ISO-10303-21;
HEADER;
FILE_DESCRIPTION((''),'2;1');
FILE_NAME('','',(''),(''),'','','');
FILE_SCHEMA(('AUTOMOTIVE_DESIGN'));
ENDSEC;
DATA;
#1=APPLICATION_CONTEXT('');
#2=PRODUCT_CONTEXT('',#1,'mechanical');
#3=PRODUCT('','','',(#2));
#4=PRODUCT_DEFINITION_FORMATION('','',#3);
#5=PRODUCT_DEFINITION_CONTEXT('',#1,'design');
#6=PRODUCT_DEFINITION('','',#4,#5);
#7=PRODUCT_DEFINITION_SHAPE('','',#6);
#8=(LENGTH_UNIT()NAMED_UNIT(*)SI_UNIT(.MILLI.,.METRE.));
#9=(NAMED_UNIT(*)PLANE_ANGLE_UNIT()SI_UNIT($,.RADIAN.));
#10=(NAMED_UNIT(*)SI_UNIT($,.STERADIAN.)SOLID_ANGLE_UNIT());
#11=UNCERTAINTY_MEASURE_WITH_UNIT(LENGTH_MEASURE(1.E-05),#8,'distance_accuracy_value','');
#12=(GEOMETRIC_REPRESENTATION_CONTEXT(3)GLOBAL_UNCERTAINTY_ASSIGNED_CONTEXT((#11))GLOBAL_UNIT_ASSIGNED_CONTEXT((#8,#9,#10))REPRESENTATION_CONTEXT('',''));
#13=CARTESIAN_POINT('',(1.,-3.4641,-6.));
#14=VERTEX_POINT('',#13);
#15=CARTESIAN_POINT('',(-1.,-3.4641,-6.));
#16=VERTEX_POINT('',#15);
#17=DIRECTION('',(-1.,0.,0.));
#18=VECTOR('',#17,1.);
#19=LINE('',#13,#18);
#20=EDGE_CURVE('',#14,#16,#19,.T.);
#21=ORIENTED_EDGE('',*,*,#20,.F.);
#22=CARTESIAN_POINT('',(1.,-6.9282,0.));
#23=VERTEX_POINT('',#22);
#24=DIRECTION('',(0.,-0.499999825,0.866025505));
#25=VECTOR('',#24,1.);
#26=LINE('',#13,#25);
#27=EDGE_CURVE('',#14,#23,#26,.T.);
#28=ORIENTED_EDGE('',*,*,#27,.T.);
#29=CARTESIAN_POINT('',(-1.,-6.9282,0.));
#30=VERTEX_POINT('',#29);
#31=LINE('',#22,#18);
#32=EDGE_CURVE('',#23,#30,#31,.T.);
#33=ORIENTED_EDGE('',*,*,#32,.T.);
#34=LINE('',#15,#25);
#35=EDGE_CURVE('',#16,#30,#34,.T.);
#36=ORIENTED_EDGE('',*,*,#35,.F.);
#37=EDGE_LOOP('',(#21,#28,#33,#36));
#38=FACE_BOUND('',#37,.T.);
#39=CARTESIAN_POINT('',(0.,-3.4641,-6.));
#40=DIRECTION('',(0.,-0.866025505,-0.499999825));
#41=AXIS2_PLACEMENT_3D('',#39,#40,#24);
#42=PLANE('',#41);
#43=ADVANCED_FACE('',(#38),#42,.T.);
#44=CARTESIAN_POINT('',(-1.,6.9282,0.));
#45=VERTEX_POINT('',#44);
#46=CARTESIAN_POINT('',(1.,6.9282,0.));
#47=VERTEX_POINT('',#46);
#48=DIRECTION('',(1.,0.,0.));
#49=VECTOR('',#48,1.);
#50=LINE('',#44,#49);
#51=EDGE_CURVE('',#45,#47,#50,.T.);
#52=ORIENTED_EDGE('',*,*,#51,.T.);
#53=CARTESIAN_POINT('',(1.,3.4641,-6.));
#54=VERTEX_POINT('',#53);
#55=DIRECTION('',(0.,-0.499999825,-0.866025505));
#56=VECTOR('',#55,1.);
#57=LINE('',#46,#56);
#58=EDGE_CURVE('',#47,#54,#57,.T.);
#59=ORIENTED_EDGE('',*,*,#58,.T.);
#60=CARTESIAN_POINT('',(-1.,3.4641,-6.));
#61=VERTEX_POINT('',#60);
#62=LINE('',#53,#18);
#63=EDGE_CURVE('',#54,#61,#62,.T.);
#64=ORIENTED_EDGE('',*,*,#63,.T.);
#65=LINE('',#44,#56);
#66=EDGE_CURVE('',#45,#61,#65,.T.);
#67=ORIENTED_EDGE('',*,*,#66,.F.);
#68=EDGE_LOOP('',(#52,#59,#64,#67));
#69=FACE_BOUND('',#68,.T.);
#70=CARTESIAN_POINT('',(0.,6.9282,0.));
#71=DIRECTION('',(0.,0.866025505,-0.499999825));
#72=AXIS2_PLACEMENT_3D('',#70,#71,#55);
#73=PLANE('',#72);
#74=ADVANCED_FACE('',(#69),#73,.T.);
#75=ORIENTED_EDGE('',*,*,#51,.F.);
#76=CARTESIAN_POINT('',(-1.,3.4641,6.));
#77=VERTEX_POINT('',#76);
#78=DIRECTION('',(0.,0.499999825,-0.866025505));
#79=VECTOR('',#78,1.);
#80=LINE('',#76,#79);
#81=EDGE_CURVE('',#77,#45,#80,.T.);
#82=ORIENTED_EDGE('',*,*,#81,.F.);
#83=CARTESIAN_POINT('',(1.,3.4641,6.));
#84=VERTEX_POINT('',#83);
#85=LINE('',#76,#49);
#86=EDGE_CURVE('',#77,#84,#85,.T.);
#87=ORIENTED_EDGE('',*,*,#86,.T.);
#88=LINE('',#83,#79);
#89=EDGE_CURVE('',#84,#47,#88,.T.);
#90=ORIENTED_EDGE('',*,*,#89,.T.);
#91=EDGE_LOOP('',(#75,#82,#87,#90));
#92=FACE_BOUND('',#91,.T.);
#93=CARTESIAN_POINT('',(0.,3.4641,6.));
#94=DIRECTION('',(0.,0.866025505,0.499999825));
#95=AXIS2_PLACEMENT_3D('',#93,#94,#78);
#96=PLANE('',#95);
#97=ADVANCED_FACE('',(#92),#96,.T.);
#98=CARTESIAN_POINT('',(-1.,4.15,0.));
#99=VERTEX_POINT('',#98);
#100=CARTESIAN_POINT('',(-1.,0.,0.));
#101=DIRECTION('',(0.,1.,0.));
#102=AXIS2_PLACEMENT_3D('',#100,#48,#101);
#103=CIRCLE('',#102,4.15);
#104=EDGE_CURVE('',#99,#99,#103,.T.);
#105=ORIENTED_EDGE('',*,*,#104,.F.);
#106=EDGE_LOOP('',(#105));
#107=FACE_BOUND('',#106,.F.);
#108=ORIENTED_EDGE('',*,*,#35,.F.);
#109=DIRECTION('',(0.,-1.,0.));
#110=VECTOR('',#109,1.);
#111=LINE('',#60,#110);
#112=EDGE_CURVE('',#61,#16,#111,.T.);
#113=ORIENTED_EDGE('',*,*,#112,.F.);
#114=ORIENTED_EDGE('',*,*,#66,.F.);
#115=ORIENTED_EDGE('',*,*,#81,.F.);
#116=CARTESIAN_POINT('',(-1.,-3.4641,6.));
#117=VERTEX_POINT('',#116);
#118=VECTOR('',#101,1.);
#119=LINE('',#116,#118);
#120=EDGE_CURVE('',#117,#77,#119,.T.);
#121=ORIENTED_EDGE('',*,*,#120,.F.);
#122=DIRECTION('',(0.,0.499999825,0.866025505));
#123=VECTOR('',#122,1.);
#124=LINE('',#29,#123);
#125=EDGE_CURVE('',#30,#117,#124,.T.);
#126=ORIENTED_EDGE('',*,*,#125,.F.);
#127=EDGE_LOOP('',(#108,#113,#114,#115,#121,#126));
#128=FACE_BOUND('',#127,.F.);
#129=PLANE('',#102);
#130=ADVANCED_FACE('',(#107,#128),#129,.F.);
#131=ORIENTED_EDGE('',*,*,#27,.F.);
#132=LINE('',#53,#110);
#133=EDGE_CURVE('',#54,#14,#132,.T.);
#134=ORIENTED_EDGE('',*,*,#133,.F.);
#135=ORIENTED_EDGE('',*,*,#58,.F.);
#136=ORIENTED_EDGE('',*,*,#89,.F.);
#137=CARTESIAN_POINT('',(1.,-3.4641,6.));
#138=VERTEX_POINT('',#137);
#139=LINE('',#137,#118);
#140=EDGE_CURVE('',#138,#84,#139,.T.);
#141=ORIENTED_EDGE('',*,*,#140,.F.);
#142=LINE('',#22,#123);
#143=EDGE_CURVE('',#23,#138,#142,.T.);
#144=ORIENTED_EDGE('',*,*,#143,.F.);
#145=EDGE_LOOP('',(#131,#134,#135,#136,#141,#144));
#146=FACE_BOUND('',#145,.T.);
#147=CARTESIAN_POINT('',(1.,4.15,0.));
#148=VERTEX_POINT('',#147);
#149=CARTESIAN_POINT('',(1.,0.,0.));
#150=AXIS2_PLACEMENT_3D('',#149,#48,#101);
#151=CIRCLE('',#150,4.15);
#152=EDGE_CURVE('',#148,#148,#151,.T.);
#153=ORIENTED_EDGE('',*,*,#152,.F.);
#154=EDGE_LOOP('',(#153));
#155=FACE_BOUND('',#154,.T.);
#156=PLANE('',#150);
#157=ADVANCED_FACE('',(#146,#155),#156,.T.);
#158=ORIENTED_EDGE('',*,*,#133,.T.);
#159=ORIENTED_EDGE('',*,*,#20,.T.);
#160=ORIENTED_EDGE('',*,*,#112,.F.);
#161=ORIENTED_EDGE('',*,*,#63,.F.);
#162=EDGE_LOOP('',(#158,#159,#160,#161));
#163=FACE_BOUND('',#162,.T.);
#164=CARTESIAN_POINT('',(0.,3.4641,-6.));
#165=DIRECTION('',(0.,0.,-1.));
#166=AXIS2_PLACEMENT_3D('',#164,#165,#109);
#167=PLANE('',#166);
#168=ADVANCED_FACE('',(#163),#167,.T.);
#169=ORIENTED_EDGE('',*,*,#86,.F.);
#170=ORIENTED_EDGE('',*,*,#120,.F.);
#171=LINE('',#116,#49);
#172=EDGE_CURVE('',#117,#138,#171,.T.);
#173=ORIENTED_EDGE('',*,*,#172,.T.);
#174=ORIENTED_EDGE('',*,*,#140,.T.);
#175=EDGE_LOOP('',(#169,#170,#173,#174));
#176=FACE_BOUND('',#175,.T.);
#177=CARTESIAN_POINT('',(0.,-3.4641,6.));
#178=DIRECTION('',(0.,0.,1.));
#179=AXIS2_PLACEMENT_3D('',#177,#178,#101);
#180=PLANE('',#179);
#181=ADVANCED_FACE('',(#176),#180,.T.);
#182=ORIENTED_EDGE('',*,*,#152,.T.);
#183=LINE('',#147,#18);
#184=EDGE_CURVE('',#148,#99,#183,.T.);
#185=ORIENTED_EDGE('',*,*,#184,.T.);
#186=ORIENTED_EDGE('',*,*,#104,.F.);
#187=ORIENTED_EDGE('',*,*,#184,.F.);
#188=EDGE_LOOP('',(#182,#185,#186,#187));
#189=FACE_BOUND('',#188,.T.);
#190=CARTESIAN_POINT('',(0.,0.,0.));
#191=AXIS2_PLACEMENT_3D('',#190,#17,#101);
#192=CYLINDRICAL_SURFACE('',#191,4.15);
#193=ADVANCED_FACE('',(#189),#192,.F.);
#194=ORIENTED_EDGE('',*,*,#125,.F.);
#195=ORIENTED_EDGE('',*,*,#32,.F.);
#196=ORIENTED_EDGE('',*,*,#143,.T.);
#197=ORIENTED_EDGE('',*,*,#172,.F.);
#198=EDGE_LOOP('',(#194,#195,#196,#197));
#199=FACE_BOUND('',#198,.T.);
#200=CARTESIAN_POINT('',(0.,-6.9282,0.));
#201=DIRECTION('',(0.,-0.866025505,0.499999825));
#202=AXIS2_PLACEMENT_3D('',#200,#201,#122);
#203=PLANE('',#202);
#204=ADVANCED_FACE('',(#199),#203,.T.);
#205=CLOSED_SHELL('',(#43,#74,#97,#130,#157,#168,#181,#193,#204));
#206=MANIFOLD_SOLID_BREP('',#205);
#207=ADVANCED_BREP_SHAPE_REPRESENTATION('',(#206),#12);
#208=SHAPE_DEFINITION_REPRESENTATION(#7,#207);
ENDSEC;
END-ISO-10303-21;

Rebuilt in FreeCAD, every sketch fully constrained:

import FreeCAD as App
import Part
import Sketcher
from FreeCAD import Vector
Q = App.Units.Quantity


def add_polygon(sketch, points):
    """Adds a closed chain of lines whose ends are joined by coincident constraints."""
    first, n = sketch.GeometryCount, len(points)
    for a, b in zip(points, points[1:] + points[:1]):
        sketch.addGeometry(Part.LineSegment(App.Vector(*a, 0), App.Vector(*b, 0)), False)
    for i in range(n):
        sketch.addConstraint(Sketcher.Constraint("Coincident", first + i, 2, first + (i + 1) % n, 1))

doc = App.newDocument("Part")
body = doc.addObject("PartDesign::Body", "Body")

# Sketch on YZ plane
sketch1 = body.newObject("Sketcher::SketchObject", "Sketch")
sketch1.AttachmentSupport = (doc.getObject("YZ_Plane"), [""])
sketch1.MapMode = "FlatFace"
add_polygon(sketch1, [(3.5, -6), (6.9, 0), (3.5, 6), (-3.5, 6), (-6.9, 0), (-3.5, -6)])  # lines 0-5
sketch1.addGeometry(Part.Circle(Vector(0, 0, 0), Vector(0, 0, 1), 4.2), False)  # 6
sketch1.addConstraint(Sketcher.Constraint("Horizontal", 2))
sketch1.addConstraint(Sketcher.Constraint("Horizontal", 5))
sketch1.addConstraint(Sketcher.Constraint("Coincident", 6, 3, -1, 1))
sketch1.addConstraint(Sketcher.Constraint("Symmetric", 0, 2, 3, 2, -1, 1))
sketch1.addConstraint(Sketcher.Constraint("Symmetric", 1, 2, 4, 2, -1, 1))
sketch1.addConstraint(Sketcher.Constraint("PointOnObject", 0, 2, -1))
sketch1.addConstraint(Sketcher.Constraint("Parallel", 0, 3))
sketch1.addConstraint(Sketcher.Constraint("Vertical", 2, 2, 4, 2))
sketch1.addConstraint(Sketcher.Constraint("Diameter", 6, Q("8.3 mm")))
sketch1.addConstraint(Sketcher.Constraint("DistanceY", 4, 2, 2, 2, Q("12 mm")))
sketch1.addConstraint(Sketcher.Constraint("Angle", 0, Q("60 deg")))
sketch1.addConstraint(Sketcher.Constraint("DistanceX", 2, 2, 2, 1, Q("6.9282 mm")))
pad1 = body.newObject("PartDesign::Pad", "Pad")
pad1.Profile = sketch1
pad1.Length = 2
pad1.Midplane = True

doc.recompute()
